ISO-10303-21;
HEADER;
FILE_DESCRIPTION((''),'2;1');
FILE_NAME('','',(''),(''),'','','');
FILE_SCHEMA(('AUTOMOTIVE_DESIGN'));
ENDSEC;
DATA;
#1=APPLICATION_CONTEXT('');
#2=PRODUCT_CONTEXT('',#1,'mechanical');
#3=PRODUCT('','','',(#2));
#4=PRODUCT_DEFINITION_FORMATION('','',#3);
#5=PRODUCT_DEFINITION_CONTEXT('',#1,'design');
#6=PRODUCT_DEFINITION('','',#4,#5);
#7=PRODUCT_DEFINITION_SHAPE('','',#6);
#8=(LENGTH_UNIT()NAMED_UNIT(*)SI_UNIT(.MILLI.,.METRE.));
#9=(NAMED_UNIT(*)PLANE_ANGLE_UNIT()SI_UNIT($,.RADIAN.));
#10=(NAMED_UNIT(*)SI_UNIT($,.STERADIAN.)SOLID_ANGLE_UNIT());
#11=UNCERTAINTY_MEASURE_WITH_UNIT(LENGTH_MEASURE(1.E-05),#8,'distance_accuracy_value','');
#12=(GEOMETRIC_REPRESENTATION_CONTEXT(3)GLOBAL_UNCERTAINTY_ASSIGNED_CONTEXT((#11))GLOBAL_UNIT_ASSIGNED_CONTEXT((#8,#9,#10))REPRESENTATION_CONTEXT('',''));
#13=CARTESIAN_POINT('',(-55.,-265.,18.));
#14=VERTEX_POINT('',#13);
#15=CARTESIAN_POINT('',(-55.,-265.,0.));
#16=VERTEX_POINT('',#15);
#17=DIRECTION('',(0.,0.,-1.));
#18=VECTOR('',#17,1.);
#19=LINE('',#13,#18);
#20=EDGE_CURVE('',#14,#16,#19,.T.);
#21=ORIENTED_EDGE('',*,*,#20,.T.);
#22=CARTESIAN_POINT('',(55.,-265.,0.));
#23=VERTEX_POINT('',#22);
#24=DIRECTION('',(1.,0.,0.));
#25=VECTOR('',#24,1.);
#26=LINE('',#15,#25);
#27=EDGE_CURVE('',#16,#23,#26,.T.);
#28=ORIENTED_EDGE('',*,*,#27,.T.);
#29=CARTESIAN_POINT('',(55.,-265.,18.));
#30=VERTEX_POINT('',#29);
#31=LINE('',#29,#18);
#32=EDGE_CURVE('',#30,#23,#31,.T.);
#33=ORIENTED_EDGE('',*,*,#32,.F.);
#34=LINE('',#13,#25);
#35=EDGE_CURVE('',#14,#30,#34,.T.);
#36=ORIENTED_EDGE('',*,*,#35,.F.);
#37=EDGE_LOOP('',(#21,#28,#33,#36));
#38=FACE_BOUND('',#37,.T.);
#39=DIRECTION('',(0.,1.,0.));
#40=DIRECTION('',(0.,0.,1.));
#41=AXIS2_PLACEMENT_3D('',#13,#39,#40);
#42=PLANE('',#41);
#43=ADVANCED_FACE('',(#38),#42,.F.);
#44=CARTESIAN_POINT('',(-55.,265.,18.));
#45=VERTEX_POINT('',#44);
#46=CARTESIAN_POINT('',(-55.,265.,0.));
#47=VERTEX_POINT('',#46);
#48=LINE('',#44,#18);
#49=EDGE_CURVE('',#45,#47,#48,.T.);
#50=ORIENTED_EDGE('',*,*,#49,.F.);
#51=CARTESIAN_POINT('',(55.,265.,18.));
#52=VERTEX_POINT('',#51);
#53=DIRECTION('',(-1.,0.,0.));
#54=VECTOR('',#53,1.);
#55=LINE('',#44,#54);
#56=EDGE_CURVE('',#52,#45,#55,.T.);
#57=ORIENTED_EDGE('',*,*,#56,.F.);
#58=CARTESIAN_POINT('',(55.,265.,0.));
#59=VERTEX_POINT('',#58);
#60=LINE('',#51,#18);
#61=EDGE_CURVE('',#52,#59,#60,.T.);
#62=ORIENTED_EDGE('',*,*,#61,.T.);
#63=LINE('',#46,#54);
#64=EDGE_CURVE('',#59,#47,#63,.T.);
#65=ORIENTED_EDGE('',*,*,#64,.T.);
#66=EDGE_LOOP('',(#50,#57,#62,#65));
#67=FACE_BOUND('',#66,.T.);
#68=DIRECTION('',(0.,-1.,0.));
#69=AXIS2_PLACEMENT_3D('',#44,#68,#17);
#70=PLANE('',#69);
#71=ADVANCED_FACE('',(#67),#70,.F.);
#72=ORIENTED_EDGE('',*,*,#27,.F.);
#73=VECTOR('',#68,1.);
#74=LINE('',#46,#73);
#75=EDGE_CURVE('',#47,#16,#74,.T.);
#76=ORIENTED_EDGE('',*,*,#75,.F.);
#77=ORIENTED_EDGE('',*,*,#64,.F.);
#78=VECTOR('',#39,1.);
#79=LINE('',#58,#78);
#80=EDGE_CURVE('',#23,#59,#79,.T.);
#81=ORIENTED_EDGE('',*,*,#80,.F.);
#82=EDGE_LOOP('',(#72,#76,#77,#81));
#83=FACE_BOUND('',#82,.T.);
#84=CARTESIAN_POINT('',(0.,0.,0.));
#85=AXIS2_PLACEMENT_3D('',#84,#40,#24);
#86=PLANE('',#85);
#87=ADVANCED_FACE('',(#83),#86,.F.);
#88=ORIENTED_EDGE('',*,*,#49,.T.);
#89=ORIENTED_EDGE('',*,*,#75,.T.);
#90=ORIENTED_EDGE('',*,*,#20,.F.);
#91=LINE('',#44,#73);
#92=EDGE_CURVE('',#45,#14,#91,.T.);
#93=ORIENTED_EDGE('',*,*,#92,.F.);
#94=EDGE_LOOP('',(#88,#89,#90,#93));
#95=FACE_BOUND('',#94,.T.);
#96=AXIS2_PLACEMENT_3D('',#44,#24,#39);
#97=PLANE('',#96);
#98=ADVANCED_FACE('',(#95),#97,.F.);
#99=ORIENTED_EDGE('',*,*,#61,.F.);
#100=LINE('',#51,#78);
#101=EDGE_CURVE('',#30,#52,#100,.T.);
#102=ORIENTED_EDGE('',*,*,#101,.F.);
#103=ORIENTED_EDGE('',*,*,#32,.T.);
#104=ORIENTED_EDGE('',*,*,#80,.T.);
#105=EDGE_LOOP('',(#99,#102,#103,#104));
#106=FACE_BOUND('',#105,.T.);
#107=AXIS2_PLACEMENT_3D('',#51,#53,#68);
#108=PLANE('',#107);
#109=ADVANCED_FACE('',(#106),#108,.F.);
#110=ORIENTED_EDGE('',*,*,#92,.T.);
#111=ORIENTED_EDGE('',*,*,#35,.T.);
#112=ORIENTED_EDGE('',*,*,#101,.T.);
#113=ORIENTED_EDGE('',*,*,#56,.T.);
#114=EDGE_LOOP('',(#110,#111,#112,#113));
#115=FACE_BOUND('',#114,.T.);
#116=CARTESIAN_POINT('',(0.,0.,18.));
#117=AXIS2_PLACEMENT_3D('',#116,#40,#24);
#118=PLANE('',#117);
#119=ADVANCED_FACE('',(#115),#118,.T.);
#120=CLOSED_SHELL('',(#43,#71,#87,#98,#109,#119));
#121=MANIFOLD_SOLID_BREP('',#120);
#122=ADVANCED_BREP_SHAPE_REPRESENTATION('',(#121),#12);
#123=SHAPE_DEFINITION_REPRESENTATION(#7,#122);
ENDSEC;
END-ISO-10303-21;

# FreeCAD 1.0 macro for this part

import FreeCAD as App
import Part
import Sketcher

V = App.Vector
Q = App.Units.Quantity

doc = App.newDocument("Part")
params = doc.addObject("Spreadsheet::Sheet", "Params")
for row, (alias, value) in enumerate([
    ("sketch1_width", "110 mm"),
    ("sketch1_height", "530 mm"),
    ("pad1_length", "18 mm"),
], start=1):
    params.set(f"A{row}", alias)
    params.set(f"B{row}", "=" + value)
    params.setAlias(f"B{row}", alias)

body = doc.addObject("PartDesign::Body", "Body")

sketch1 = doc.addObject("Sketcher::SketchObject", "Sketch")
body.addObject(sketch1)
sketch1.AttachmentSupport = (doc.XY_Plane, [""])
sketch1.MapMode = "FlatFace"
sketch1.addGeometry(Part.LineSegment(V(-55, 265, 0), V(-55, -265, 0)), False)
sketch1.addGeometry(Part.LineSegment(V(-55, -265, 0), V(55, -265, 0)), False)
sketch1.addGeometry(Part.LineSegment(V(55, -265, 0), V(55, 265, 0)), False)
sketch1.addGeometry(Part.LineSegment(V(55, 265, 0), V(-55, 265, 0)), False)
sketch1.addConstraint(Sketcher.Constraint("Coincident", 0, 2, 1, 1))
sketch1.addConstraint(Sketcher.Constraint("Coincident", 1, 2, 2, 1))
sketch1.addConstraint(Sketcher.Constraint("Coincident", 2, 2, 3, 1))
sketch1.addConstraint(Sketcher.Constraint("Coincident", 3, 2, 0, 1))
sketch1.addConstraint(Sketcher.Constraint("Vertical", 0))
sketch1.addConstraint(Sketcher.Constraint("Horizontal", 1))
sketch1.addConstraint(Sketcher.Constraint("Vertical", 2))
sketch1.addConstraint(Sketcher.Constraint("Horizontal", 3))
sketch1.addConstraint(Sketcher.Constraint("Symmetric", 0, 2, 2, 2, -1, 1))
sketch1.addConstraint(Sketcher.Constraint("DistanceX", 1, 1, 1, 2, Q("110 mm")))
sketch1.addConstraint(Sketcher.Constraint("DistanceY", 0, 2, 0, 1, Q("530 mm")))
sketch1.setExpression("Constraints[9]", "Params.sketch1_width")
sketch1.setExpression("Constraints[10]", "Params.sketch1_height")
pad1 = doc.addObject("PartDesign::Pad", "Pad")
body.addObject(pad1)
pad1.Profile = sketch1
pad1.setExpression("Length", "Params.pad1_length")

doc.recompute()
